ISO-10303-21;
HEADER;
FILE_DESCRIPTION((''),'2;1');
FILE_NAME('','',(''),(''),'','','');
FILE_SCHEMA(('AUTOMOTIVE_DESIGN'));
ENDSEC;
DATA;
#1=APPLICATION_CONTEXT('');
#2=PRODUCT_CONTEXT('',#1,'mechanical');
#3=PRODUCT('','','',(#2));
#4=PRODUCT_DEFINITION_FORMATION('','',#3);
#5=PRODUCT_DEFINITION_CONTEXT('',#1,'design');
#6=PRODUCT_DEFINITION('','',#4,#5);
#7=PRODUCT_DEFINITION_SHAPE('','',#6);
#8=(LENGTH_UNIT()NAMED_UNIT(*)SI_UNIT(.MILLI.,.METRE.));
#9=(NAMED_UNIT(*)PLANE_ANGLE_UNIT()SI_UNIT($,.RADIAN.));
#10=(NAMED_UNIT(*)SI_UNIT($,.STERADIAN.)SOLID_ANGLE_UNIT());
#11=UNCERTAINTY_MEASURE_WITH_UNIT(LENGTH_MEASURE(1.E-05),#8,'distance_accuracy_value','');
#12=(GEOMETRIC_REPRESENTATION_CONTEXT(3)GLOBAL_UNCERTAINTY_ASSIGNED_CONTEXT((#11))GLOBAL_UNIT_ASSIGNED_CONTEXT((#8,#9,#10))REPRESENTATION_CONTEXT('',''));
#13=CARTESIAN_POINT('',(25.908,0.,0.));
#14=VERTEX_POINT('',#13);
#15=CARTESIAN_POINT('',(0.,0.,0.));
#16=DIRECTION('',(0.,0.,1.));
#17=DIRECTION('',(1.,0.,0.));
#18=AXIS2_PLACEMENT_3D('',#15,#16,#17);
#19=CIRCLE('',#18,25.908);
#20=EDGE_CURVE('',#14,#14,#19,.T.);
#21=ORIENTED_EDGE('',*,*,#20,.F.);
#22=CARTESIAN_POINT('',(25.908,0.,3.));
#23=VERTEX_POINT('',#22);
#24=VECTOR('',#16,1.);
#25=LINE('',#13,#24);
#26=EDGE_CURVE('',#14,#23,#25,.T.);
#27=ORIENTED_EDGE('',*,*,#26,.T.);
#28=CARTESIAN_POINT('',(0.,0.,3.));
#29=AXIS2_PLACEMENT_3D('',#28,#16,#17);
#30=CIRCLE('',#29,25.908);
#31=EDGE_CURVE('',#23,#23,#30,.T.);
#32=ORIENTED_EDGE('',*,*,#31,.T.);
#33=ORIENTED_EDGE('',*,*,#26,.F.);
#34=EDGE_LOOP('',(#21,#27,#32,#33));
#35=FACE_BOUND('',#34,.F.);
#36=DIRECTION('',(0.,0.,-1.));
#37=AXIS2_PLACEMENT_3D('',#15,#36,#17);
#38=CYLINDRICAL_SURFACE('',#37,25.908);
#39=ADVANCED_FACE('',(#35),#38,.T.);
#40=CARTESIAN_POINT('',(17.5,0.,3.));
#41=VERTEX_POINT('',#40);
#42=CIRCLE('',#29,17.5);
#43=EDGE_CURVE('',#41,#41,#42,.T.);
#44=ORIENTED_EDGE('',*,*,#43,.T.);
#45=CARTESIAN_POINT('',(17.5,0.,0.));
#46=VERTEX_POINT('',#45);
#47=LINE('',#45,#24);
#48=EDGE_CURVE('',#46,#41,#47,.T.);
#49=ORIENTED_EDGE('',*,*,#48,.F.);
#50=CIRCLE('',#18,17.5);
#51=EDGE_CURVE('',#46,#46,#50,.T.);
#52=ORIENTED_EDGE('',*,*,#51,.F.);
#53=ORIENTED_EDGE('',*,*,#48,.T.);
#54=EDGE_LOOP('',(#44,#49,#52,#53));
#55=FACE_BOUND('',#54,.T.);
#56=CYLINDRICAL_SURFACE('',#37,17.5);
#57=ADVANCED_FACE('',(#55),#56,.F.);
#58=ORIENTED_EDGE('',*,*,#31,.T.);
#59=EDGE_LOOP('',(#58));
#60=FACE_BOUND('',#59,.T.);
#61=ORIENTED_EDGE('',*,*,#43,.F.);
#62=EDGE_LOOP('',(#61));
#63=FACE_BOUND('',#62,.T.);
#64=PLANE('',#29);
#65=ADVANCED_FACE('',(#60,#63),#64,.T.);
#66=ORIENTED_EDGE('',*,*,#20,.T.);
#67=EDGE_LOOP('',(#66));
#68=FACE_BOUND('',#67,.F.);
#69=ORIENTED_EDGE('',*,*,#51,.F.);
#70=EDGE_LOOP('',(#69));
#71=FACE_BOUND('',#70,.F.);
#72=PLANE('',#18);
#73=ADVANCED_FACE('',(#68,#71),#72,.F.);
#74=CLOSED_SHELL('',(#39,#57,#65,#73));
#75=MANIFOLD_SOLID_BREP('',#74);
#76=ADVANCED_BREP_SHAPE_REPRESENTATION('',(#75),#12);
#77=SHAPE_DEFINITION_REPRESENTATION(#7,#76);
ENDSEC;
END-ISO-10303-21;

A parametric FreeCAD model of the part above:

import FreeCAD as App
import Part
import Sketcher
from FreeCAD import Vector

doc = App.newDocument("Part")
body = doc.addObject("PartDesign::Body", "Body")

sketch1 = body.newObject("Sketcher::SketchObject", "Sketch")
sketch1.AttachmentSupport = (doc.getObject("XY_Plane"), [""])
sketch1.MapMode = "FlatFace"
sketch1.addGeometry(Part.Circle(Vector(0, 0, 0), Vector(0, 0, 1), 26), False)
sketch1.addGeometry(Part.Circle(Vector(0, 0, 0), Vector(0, 0, 1), 18), False)
sketch1.addConstraint(Sketcher.Constraint("Coincident", 0, 3, -1, 1))
sketch1.addConstraint(Sketcher.Constraint("Coincident", 1, 3, -1, 1))
sketch1.addConstraint(Sketcher.Constraint("Diameter", 1, 35.0))
sketch1.addConstraint(Sketcher.Constraint("Diameter", 0, 51.816))
pad1 = body.newObject("PartDesign::Pad", "Pad")
pad1.Profile = sketch1
pad1.Length = 3

doc.recompute()
